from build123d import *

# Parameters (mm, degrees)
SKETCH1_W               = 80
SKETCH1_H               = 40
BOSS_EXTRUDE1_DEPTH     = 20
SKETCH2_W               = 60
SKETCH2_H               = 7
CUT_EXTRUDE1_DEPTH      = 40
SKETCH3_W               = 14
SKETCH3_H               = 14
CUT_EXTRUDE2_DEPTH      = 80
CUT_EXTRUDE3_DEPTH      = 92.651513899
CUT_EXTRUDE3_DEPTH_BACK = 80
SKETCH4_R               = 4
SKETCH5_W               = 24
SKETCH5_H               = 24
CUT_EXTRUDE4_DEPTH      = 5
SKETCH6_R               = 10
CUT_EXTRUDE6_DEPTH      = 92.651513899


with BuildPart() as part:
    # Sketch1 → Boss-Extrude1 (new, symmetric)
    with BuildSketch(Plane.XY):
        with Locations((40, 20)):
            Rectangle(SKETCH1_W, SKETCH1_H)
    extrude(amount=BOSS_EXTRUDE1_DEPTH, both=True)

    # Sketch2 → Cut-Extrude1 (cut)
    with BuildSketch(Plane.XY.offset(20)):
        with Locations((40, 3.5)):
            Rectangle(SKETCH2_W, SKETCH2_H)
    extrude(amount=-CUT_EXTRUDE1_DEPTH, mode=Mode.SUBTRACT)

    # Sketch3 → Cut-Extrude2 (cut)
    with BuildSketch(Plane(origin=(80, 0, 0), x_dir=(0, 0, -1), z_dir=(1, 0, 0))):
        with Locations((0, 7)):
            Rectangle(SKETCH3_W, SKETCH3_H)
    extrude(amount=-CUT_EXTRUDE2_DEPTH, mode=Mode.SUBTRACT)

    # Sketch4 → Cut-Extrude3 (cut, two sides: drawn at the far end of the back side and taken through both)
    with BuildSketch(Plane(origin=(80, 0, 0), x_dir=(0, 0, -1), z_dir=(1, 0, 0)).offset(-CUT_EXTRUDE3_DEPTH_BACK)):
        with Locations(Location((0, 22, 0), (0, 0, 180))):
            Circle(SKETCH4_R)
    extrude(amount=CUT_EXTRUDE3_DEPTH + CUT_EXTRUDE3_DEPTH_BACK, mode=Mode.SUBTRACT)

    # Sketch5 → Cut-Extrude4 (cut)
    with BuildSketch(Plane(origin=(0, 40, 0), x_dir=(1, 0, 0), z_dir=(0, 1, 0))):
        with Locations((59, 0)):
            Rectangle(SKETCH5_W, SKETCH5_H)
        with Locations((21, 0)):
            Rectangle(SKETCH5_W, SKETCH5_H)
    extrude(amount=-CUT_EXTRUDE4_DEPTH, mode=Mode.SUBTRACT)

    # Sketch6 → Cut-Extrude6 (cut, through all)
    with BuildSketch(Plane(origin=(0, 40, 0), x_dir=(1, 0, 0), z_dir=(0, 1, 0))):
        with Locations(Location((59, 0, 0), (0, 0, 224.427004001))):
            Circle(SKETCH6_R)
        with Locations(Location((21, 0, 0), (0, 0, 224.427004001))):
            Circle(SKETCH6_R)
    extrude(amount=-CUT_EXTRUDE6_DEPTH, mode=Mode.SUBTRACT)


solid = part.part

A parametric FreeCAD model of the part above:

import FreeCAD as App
import Part
import Sketcher

V = App.Vector
Q = App.Units.Quantity


def add_polygon(sketch, points):
    """Adds a closed chain of lines whose ends are joined by coincident constraints."""
    first, n = sketch.GeometryCount, len(points)
    for a, b in zip(points, points[1:] + points[:1]):
        sketch.addGeometry(Part.LineSegment(App.Vector(*a, 0), App.Vector(*b, 0)), False)
    for i in range(n):
        sketch.addConstraint(Sketcher.Constraint("Coincident", first + i, 2, first + (i + 1) % n, 1))

doc = App.newDocument("Part")
params = doc.addObject("Spreadsheet::Sheet", "Params")
for row, (alias, value) in enumerate([
    ("sketch1_width", "80 mm"),
    ("sketch1_height", "40 mm"),
    ("pad1_length", "40 mm"),
    ("sketch2_width", "60 mm"),
    ("sketch2_height", "7 mm"),
    ("pocket1_length", "40 mm"),
    ("sketch3_width", "14 mm"),
    ("pocket2_length", "80 mm"),
    ("sketch4_diameter", "8 mm"),
    ("sketch5_width", "24 mm"),
    ("pocket4_length", "5 mm"),
    ("sketch6_diameter", "20 mm"),
], start=1):
    params.set(f"A{row}", alias)
    params.set(f"B{row}", "=" + value)
    params.setAlias(f"B{row}", alias)

body = doc.addObject("PartDesign::Body", "Body")

sketch1 = body.newObject("Sketcher::SketchObject", "Sketch")
sketch1.AttachmentSupport = (doc.getObject("XY_Plane"), [""])
sketch1.MapMode = "FlatFace"
add_polygon(sketch1, [(0, 40), (0, 0), (80, 0), (80, 40)])
sketch1.addConstraint([
    Sketcher.Constraint("Vertical", 0),
    Sketcher.Constraint("Horizontal", 1),
    Sketcher.Constraint("Vertical", 2),
    Sketcher.Constraint("Horizontal", 3),
    Sketcher.Constraint("Coincident", 0, 2, -1, 1),
    Sketcher.Constraint("DistanceX", 1, 1, 1, 2, Q("80 mm")),
    Sketcher.Constraint("DistanceY", 0, 2, 0, 1, Q("40 mm")),
])
sketch1.setExpression("Constraints[9]", "Params.sketch1_width")
sketch1.setExpression("Constraints[10]", "Params.sketch1_height")
pad1 = body.newObject("PartDesign::Pad", "Pad")
pad1.Profile = sketch1
pad1.setExpression("Length", "Params.pad1_length")
pad1.Midplane = True

sketch2 = body.newObject("Sketcher::SketchObject", "Sketch001")
sketch2.AttachmentSupport = (doc.getObject("XY_Plane"), [""])
sketch2.MapMode = "FlatFace"
sketch2.AttachmentOffset = App.Placement(V(0, 0, 20), App.Rotation())
add_polygon(sketch2, [(10, 7), (10, 0), (70, 0), (70, 7)])
sketch2.addConstraint([
    Sketcher.Constraint("Vertical", 0),
    Sketcher.Constraint("Horizontal", 1),
    Sketcher.Constraint("Vertical", 2),
    Sketcher.Constraint("Horizontal", 3),
    Sketcher.Constraint("PointOnObject", 0, 2, -1),
    Sketcher.Constraint("DistanceX", 1, 1, 1, 2, Q("60 mm")),
    Sketcher.Constraint("DistanceY", 0, 2, 0, 1, Q("7 mm")),
    Sketcher.Constraint("DistanceX", -1, 1, 0, 2, Q("10 mm")),
])
sketch2.setExpression("Constraints[9]", "Params.sketch2_width")
sketch2.setExpression("Constraints[10]", "Params.sketch2_height")
pocket1 = body.newObject("PartDesign::Pocket", "Pocket")
pocket1.Profile = sketch2
pocket1.setExpression("Length", "Params.pocket1_length")

sketch3 = body.newObject("Sketcher::SketchObject", "Sketch002")
sketch3.AttachmentSupport = (doc.getObject("YZ_Plane"), [""])
sketch3.MapMode = "FlatFace"
sketch3.AttachmentOffset = App.Placement(V(0, 0, 80), App.Rotation())
add_polygon(sketch3, [(14, 7), (0, 7), (0, -7), (14, -7)])
sketch3.addConstraint([
    Sketcher.Constraint("Horizontal", 0),
    Sketcher.Constraint("Vertical", 1),
    Sketcher.Constraint("Horizontal", 2),
    Sketcher.Constraint("Vertical", 3),
    Sketcher.Constraint("Symmetric", 0, 2, 1, 2, -1, 1),
    Sketcher.Constraint("Equal", 2, 1),
    Sketcher.Constraint("DistanceX", 0, 2, 0, 1, Q("14 mm")),
])
sketch3.setExpression("Constraints[10]", "Params.sketch3_width")
pocket2 = body.newObject("PartDesign::Pocket", "Pocket001")
pocket2.Profile = sketch3
pocket2.setExpression("Length", "Params.pocket2_length")

sketch4 = body.newObject("Sketcher::SketchObject", "Sketch003")
sketch4.AttachmentSupport = (doc.getObject("YZ_Plane"), [""])
sketch4.MapMode = "FlatFace"
sketch4.AttachmentOffset = App.Placement(V(0, 0, 80), App.Rotation())
sketch4.addGeometry(Part.Circle(V(22, 0, 0), V(0, 0, 1), 4), False)
sketch4.addConstraint([
    Sketcher.Constraint("PointOnObject", 0, 3, -1),
    Sketcher.Constraint("Diameter", 0, Q("8 mm")),
    Sketcher.Constraint("DistanceX", -1, 1, 0, 3, Q("22 mm")),
])
sketch4.setExpression("Constraints[1]", "Params.sketch4_diameter")
pocket3 = body.newObject("PartDesign::Pocket", "Pocket002")
pocket3.Profile = sketch4
pocket3.Type = "ThroughAll"
pocket3.Midplane = True

sketch5 = body.newObject("Sketcher::SketchObject", "Sketch004")
sketch5.AttachmentSupport = (doc.getObject("XZ_Plane"), [""])
sketch5.MapMode = "FlatFace"
sketch5.AttachmentOffset = App.Placement(V(0, 0, -40), App.Rotation())
add_polygon(sketch5, [(47, -12), (47, 12), (71, 12), (71, -12)])
add_polygon(sketch5, [(9, -12), (9, 12), (33, 12), (33, -12)])
sketch5.addConstraint([
    Sketcher.Constraint("Vertical", 0),
    Sketcher.Constraint("Horizontal", 1),
    Sketcher.Constraint("Vertical", 2),
    Sketcher.Constraint("Horizontal", 3),
    Sketcher.Constraint("Vertical", 4),
    Sketcher.Constraint("Horizontal", 5),
    Sketcher.Constraint("Vertical", 6),
    Sketcher.Constraint("Horizontal", 7),
    Sketcher.Constraint("Horizontal", 1, 2, 4, 2),
    Sketcher.Constraint("Horizontal", 3, 2, 6, 2),
    Sketcher.Constraint("Equal", 3, 5),
    Sketcher.Constraint("Equal", 7, 0),
    Sketcher.Constraint("DistanceX", 1, 1, 1, 2, Q("24 mm")),
    Sketcher.Constraint("DistanceX", -1, 1, 0, 2, Q("47 mm")),
    Sketcher.Constraint("DistanceY", -1, 1, 0, 2, Q("12 mm")),
    Sketcher.Constraint("DistanceX", -1, 1, 4, 2, Q("9 mm")),
])
sketch5.setExpression("Constraints[20]", "Params.sketch5_width")
pocket4 = body.newObject("PartDesign::Pocket", "Pocket003")
pocket4.Profile = sketch5
pocket4.setExpression("Length", "Params.pocket4_length")
pocket4.Reversed = True

sketch6 = body.newObject("Sketcher::SketchObject", "Sketch005")
sketch6.AttachmentSupport = (doc.getObject("XZ_Plane"), [""])
sketch6.MapMode = "FlatFace"
sketch6.AttachmentOffset = App.Placement(V(0, 0, -40), App.Rotation())
sketch6.addGeometry([
    Part.Circle(V(59, 0, 0), V(0, 0, 1), 10),
    Part.Circle(V(21, 0, 0), V(0, 0, 1), 10),
], False)
sketch6.addConstraint([
    Sketcher.Constraint("Equal", 0, 1),
    Sketcher.Constraint("PointOnObject", 0, 3, -1),
    Sketcher.Constraint("PointOnObject", 1, 3, -1),
    Sketcher.Constraint("Diameter", 0, Q("20 mm")),
    Sketcher.Constraint("DistanceX", -1, 1, 0, 3, Q("59 mm")),
    Sketcher.Constraint("DistanceX", -1, 1, 1, 3, Q("21 mm")),
])
sketch6.setExpression("Constraints[3]", "Params.sketch6_diameter")
pocket5 = body.newObject("PartDesign::Pocket", "Pocket004")
pocket5.Profile = sketch6
pocket5.Type = "ThroughAll"
pocket5.Reversed = True

doc.recompute()
